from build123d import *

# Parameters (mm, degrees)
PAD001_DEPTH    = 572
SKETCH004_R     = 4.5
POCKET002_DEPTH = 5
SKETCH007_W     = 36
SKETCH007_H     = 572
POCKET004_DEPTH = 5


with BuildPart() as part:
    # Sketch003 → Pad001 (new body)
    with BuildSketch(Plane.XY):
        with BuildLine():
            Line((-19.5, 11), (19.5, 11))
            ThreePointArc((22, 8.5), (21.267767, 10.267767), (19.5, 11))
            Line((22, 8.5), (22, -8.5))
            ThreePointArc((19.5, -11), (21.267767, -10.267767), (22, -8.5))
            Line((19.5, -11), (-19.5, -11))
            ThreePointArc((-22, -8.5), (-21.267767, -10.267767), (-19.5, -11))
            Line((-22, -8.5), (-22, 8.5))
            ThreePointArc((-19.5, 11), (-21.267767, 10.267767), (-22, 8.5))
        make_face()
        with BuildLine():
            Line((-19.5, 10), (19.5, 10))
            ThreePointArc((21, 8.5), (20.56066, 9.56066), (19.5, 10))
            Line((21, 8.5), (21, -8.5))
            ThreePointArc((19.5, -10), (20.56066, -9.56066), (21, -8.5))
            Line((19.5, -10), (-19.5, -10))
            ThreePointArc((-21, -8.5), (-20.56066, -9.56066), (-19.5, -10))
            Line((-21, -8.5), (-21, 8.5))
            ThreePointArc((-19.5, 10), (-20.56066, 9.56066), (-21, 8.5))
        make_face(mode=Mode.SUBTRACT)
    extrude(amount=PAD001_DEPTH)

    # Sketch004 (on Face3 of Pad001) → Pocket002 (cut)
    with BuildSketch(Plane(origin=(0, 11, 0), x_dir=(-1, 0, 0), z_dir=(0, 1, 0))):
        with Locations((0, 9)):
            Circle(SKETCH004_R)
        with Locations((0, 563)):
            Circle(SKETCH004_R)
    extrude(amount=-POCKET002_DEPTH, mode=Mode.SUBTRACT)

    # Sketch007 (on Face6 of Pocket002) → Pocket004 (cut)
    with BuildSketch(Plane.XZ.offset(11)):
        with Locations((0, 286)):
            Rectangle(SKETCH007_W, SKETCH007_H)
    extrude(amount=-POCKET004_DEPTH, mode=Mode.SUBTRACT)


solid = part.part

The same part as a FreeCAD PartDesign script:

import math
import FreeCAD as App
import Part
import Sketcher
from FreeCAD import Vector

doc = App.newDocument("Part")
body = doc.addObject("PartDesign::Body", "Body")

# Sketch on XY plane
sketch1 = body.newObject("Sketcher::SketchObject", "Sketch")
sketch1.AttachmentSupport = (doc.getObject("XY_Plane"), [""])
sketch1.MapMode = "FlatFace"
sketch1.addGeometry(Part.LineSegment(Vector(19.5, 11, 0), Vector(-19.5, 11, 0)), False)
sketch1.addGeometry(Part.ArcOfCircle(Part.Circle(Vector(-19.5, 8.5, 0), Vector(0, 0, 1), 2.5), math.radians(89.999996), math.radians(180.000004)), False)
sketch1.addGeometry(Part.LineSegment(Vector(-22, 8.5, 0), Vector(-22, -8.5, 0)), False)
sketch1.addGeometry(Part.ArcOfCircle(Part.Circle(Vector(-19.5, -8.5, 0), Vector(0, 0, 1), 2.5), math.radians(179.999996), math.radians(270.000004)), False)
sketch1.addGeometry(Part.LineSegment(Vector(-19.5, -11, 0), Vector(19.5, -11, 0)), False)
sketch1.addGeometry(Part.ArcOfCircle(Part.Circle(Vector(19.5, -8.5, 0), Vector(0, 0, 1), 2.5), math.radians(-90.000004), math.radians(0.000004)), False)
sketch1.addGeometry(Part.LineSegment(Vector(22, -8.5, 0), Vector(22, 8.5, 0)), False)
sketch1.addGeometry(Part.ArcOfCircle(Part.Circle(Vector(19.5, 8.5, 0), Vector(0, 0, 1), 2.5), math.radians(-0.000004), math.radians(90.000004)), False)
sketch1.addGeometry(Part.LineSegment(Vector(-19.5, 10, 0), Vector(19.5, 10, 0)), False)
sketch1.addGeometry(Part.ArcOfCircle(Part.Circle(Vector(19.499999, 8.499999, 0), Vector(0, 0, 1), 1.500001), math.radians(0.000022), math.radians(89.999978)), False)
sketch1.addGeometry(Part.LineSegment(Vector(21, 8.5, 0), Vector(21, -8.5, 0)), False)
sketch1.addGeometry(Part.ArcOfCircle(Part.Circle(Vector(19.499999, -8.499999, 0), Vector(0, 0, 1), 1.500001), math.radians(-89.999978), math.radians(-0.000022)), False)
sketch1.addGeometry(Part.LineSegment(Vector(19.5, -10, 0), Vector(-19.5, -10, 0)), False)
sketch1.addGeometry(Part.ArcOfCircle(Part.Circle(Vector(-19.499999, -8.499999, 0), Vector(0, 0, 1), 1.500001), math.radians(-179.999978), math.radians(-90.000022)), False)
sketch1.addGeometry(Part.LineSegment(Vector(-21, -8.5, 0), Vector(-21, 8.5, 0)), False)
sketch1.addGeometry(Part.ArcOfCircle(Part.Circle(Vector(-19.499999, 8.499999, 0), Vector(0, 0, 1), 1.500001), math.radians(90.000022), math.radians(179.999978)), False)
sketch1.addConstraint(Sketcher.Constraint("Tangent", 0, 2, 1, 1))
sketch1.addConstraint(Sketcher.Constraint("Tangent", 1, 2, 2, 1))
sketch1.addConstraint(Sketcher.Constraint("Tangent", 2, 2, 3, 1))
sketch1.addConstraint(Sketcher.Constraint("Tangent", 3, 2, 4, 1))
sketch1.addConstraint(Sketcher.Constraint("Tangent", 4, 2, 5, 1))
sketch1.addConstraint(Sketcher.Constraint("Tangent", 5, 2, 6, 1))
sketch1.addConstraint(Sketcher.Constraint("Tangent", 6, 2, 7, 1))
sketch1.addConstraint(Sketcher.Constraint("Tangent", 7, 2, 0, 1))
sketch1.addConstraint(Sketcher.Constraint("Tangent", 8, 2, 9, 2))
sketch1.addConstraint(Sketcher.Constraint("Tangent", 9, 1, 10, 1))
sketch1.addConstraint(Sketcher.Constraint("Tangent", 10, 2, 11, 2))
sketch1.addConstraint(Sketcher.Constraint("Tangent", 11, 1, 12, 1))
sketch1.addConstraint(Sketcher.Constraint("Tangent", 12, 2, 13, 2))
sketch1.addConstraint(Sketcher.Constraint("Tangent", 13, 1, 14, 1))
sketch1.addConstraint(Sketcher.Constraint("Tangent", 14, 2, 15, 2))
sketch1.addConstraint(Sketcher.Constraint("Tangent", 15, 1, 8, 1))
sketch1.addConstraint(Sketcher.Constraint("Horizontal", 0))
sketch1.addConstraint(Sketcher.Constraint("Vertical", 2))
sketch1.addConstraint(Sketcher.Constraint("Horizontal", 4))
sketch1.addConstraint(Sketcher.Constraint("Vertical", 6))
sketch1.addConstraint(Sketcher.Constraint("Horizontal", 8))
sketch1.addConstraint(Sketcher.Constraint("Vertical", 10))
sketch1.addConstraint(Sketcher.Constraint("Horizontal", 12))
sketch1.addConstraint(Sketcher.Constraint("Vertical", 14))
sketch1.addConstraint(Sketcher.Constraint("Coincident", 9, 3, 7, 3))
sketch1.addConstraint(Sketcher.Constraint("Coincident", 11, 3, 5, 3))
sketch1.addConstraint(Sketcher.Constraint("Coincident", 13, 3, 3, 3))
sketch1.addConstraint(Sketcher.Constraint("Equal", 1, 3))
sketch1.addConstraint(Sketcher.Constraint("Equal", 3, 5))
sketch1.addConstraint(Sketcher.Constraint("Equal", 5, 7))
sketch1.addConstraint(Sketcher.Constraint("Equal", 13, 15))
sketch1.addConstraint(Sketcher.Constraint("Symmetric", 1, 3, 5, 3, -1, 1))
sketch1.addConstraint(Sketcher.Constraint("Radius", 1, 2.5))
sketch1.addConstraint(Sketcher.Constraint("Radius", 9, 1.500001))
sketch1.addConstraint(Sketcher.Constraint("DistanceX", 0, 2, 0, 1, 39.0))
sketch1.addConstraint(Sketcher.Constraint("DistanceY", 2, 2, 2, 1, 17.0))
pad1 = body.newObject("PartDesign::Pad", "Pad")
pad1.Profile = sketch1
pad1.Length = 572

# Sketch on XZ plane
sketch2 = body.newObject("Sketcher::SketchObject", "Sketch001")
sketch2.AttachmentSupport = (doc.getObject("XZ_Plane"), [""])
sketch2.MapMode = "FlatFace"
sketch2.AttachmentOffset = App.Placement(Vector(0, 0, -11), App.Rotation())
sketch2.addGeometry(Part.Circle(Vector(0, 9, 0), Vector(0, 0, 1), 4.5), False)
sketch2.addGeometry(Part.Circle(Vector(0, 563, 0), Vector(0, 0, 1), 4.5), False)
sketch2.addConstraint(Sketcher.Constraint("Equal", 0, 1))
sketch2.addConstraint(Sketcher.Constraint("PointOnObject", 0, 3, -2))
sketch2.addConstraint(Sketcher.Constraint("PointOnObject", 1, 3, -2))
sketch2.addConstraint(Sketcher.Constraint("Diameter", 0, 9.0))
sketch2.addConstraint(Sketcher.Constraint("DistanceY", -1, 1, 0, 3, 9.0))
sketch2.addConstraint(Sketcher.Constraint("DistanceY", -1, 1, 1, 3, 563.0))
pocket1 = body.newObject("PartDesign::Pocket", "Pocket")
pocket1.Profile = sketch2
pocket1.Length = 5
pocket1.Reversed = True

# Sketch on XZ plane
sketch3 = body.newObject("Sketcher::SketchObject", "Sketch002")
sketch3.AttachmentSupport = (doc.getObject("XZ_Plane"), [""])
sketch3.MapMode = "FlatFace"
sketch3.AttachmentOffset = App.Placement(Vector(0, 0, 11), App.Rotation())
sketch3.addGeometry(Part.LineSegment(Vector(-18, 572, 0), Vector(-18, 0, 0)), False)
sketch3.addGeometry(Part.LineSegment(Vector(-18, 0, 0), Vector(18, 0, 0)), False)
sketch3.addGeometry(Part.LineSegment(Vector(18, 0, 0), Vector(18, 572, 0)), False)
sketch3.addGeometry(Part.LineSegment(Vector(18, 572, 0), Vector(-18, 572, 0)), False)
sketch3.addConstraint(Sketcher.Constraint("Coincident", 0, 2, 1, 1))
sketch3.addConstraint(Sketcher.Constraint("Coincident", 1, 2, 2, 1))
sketch3.addConstraint(Sketcher.Constraint("Coincident", 2, 2, 3, 1))
sketch3.addConstraint(Sketcher.Constraint("Coincident", 3, 2, 0, 1))
sketch3.addConstraint(Sketcher.Constraint("Vertical", 0))
sketch3.addConstraint(Sketcher.Constraint("Horizontal", 1))
sketch3.addConstraint(Sketcher.Constraint("Vertical", 2))
sketch3.addConstraint(Sketcher.Constraint("Horizontal", 3))
sketch3.addConstraint(Sketcher.Constraint("Symmetric", 0, 2, 1, 2, -1, 1))
sketch3.addConstraint(Sketcher.Constraint("DistanceX", 1, 1, 1, 2, 36.0))
sketch3.addConstraint(Sketcher.Constraint("DistanceY", 0, 2, 0, 1, 572.0))
pocket2 = body.newObject("PartDesign::Pocket", "Pocket001")
pocket2.Profile = sketch3
pocket2.Length = 5

doc.recompute()
